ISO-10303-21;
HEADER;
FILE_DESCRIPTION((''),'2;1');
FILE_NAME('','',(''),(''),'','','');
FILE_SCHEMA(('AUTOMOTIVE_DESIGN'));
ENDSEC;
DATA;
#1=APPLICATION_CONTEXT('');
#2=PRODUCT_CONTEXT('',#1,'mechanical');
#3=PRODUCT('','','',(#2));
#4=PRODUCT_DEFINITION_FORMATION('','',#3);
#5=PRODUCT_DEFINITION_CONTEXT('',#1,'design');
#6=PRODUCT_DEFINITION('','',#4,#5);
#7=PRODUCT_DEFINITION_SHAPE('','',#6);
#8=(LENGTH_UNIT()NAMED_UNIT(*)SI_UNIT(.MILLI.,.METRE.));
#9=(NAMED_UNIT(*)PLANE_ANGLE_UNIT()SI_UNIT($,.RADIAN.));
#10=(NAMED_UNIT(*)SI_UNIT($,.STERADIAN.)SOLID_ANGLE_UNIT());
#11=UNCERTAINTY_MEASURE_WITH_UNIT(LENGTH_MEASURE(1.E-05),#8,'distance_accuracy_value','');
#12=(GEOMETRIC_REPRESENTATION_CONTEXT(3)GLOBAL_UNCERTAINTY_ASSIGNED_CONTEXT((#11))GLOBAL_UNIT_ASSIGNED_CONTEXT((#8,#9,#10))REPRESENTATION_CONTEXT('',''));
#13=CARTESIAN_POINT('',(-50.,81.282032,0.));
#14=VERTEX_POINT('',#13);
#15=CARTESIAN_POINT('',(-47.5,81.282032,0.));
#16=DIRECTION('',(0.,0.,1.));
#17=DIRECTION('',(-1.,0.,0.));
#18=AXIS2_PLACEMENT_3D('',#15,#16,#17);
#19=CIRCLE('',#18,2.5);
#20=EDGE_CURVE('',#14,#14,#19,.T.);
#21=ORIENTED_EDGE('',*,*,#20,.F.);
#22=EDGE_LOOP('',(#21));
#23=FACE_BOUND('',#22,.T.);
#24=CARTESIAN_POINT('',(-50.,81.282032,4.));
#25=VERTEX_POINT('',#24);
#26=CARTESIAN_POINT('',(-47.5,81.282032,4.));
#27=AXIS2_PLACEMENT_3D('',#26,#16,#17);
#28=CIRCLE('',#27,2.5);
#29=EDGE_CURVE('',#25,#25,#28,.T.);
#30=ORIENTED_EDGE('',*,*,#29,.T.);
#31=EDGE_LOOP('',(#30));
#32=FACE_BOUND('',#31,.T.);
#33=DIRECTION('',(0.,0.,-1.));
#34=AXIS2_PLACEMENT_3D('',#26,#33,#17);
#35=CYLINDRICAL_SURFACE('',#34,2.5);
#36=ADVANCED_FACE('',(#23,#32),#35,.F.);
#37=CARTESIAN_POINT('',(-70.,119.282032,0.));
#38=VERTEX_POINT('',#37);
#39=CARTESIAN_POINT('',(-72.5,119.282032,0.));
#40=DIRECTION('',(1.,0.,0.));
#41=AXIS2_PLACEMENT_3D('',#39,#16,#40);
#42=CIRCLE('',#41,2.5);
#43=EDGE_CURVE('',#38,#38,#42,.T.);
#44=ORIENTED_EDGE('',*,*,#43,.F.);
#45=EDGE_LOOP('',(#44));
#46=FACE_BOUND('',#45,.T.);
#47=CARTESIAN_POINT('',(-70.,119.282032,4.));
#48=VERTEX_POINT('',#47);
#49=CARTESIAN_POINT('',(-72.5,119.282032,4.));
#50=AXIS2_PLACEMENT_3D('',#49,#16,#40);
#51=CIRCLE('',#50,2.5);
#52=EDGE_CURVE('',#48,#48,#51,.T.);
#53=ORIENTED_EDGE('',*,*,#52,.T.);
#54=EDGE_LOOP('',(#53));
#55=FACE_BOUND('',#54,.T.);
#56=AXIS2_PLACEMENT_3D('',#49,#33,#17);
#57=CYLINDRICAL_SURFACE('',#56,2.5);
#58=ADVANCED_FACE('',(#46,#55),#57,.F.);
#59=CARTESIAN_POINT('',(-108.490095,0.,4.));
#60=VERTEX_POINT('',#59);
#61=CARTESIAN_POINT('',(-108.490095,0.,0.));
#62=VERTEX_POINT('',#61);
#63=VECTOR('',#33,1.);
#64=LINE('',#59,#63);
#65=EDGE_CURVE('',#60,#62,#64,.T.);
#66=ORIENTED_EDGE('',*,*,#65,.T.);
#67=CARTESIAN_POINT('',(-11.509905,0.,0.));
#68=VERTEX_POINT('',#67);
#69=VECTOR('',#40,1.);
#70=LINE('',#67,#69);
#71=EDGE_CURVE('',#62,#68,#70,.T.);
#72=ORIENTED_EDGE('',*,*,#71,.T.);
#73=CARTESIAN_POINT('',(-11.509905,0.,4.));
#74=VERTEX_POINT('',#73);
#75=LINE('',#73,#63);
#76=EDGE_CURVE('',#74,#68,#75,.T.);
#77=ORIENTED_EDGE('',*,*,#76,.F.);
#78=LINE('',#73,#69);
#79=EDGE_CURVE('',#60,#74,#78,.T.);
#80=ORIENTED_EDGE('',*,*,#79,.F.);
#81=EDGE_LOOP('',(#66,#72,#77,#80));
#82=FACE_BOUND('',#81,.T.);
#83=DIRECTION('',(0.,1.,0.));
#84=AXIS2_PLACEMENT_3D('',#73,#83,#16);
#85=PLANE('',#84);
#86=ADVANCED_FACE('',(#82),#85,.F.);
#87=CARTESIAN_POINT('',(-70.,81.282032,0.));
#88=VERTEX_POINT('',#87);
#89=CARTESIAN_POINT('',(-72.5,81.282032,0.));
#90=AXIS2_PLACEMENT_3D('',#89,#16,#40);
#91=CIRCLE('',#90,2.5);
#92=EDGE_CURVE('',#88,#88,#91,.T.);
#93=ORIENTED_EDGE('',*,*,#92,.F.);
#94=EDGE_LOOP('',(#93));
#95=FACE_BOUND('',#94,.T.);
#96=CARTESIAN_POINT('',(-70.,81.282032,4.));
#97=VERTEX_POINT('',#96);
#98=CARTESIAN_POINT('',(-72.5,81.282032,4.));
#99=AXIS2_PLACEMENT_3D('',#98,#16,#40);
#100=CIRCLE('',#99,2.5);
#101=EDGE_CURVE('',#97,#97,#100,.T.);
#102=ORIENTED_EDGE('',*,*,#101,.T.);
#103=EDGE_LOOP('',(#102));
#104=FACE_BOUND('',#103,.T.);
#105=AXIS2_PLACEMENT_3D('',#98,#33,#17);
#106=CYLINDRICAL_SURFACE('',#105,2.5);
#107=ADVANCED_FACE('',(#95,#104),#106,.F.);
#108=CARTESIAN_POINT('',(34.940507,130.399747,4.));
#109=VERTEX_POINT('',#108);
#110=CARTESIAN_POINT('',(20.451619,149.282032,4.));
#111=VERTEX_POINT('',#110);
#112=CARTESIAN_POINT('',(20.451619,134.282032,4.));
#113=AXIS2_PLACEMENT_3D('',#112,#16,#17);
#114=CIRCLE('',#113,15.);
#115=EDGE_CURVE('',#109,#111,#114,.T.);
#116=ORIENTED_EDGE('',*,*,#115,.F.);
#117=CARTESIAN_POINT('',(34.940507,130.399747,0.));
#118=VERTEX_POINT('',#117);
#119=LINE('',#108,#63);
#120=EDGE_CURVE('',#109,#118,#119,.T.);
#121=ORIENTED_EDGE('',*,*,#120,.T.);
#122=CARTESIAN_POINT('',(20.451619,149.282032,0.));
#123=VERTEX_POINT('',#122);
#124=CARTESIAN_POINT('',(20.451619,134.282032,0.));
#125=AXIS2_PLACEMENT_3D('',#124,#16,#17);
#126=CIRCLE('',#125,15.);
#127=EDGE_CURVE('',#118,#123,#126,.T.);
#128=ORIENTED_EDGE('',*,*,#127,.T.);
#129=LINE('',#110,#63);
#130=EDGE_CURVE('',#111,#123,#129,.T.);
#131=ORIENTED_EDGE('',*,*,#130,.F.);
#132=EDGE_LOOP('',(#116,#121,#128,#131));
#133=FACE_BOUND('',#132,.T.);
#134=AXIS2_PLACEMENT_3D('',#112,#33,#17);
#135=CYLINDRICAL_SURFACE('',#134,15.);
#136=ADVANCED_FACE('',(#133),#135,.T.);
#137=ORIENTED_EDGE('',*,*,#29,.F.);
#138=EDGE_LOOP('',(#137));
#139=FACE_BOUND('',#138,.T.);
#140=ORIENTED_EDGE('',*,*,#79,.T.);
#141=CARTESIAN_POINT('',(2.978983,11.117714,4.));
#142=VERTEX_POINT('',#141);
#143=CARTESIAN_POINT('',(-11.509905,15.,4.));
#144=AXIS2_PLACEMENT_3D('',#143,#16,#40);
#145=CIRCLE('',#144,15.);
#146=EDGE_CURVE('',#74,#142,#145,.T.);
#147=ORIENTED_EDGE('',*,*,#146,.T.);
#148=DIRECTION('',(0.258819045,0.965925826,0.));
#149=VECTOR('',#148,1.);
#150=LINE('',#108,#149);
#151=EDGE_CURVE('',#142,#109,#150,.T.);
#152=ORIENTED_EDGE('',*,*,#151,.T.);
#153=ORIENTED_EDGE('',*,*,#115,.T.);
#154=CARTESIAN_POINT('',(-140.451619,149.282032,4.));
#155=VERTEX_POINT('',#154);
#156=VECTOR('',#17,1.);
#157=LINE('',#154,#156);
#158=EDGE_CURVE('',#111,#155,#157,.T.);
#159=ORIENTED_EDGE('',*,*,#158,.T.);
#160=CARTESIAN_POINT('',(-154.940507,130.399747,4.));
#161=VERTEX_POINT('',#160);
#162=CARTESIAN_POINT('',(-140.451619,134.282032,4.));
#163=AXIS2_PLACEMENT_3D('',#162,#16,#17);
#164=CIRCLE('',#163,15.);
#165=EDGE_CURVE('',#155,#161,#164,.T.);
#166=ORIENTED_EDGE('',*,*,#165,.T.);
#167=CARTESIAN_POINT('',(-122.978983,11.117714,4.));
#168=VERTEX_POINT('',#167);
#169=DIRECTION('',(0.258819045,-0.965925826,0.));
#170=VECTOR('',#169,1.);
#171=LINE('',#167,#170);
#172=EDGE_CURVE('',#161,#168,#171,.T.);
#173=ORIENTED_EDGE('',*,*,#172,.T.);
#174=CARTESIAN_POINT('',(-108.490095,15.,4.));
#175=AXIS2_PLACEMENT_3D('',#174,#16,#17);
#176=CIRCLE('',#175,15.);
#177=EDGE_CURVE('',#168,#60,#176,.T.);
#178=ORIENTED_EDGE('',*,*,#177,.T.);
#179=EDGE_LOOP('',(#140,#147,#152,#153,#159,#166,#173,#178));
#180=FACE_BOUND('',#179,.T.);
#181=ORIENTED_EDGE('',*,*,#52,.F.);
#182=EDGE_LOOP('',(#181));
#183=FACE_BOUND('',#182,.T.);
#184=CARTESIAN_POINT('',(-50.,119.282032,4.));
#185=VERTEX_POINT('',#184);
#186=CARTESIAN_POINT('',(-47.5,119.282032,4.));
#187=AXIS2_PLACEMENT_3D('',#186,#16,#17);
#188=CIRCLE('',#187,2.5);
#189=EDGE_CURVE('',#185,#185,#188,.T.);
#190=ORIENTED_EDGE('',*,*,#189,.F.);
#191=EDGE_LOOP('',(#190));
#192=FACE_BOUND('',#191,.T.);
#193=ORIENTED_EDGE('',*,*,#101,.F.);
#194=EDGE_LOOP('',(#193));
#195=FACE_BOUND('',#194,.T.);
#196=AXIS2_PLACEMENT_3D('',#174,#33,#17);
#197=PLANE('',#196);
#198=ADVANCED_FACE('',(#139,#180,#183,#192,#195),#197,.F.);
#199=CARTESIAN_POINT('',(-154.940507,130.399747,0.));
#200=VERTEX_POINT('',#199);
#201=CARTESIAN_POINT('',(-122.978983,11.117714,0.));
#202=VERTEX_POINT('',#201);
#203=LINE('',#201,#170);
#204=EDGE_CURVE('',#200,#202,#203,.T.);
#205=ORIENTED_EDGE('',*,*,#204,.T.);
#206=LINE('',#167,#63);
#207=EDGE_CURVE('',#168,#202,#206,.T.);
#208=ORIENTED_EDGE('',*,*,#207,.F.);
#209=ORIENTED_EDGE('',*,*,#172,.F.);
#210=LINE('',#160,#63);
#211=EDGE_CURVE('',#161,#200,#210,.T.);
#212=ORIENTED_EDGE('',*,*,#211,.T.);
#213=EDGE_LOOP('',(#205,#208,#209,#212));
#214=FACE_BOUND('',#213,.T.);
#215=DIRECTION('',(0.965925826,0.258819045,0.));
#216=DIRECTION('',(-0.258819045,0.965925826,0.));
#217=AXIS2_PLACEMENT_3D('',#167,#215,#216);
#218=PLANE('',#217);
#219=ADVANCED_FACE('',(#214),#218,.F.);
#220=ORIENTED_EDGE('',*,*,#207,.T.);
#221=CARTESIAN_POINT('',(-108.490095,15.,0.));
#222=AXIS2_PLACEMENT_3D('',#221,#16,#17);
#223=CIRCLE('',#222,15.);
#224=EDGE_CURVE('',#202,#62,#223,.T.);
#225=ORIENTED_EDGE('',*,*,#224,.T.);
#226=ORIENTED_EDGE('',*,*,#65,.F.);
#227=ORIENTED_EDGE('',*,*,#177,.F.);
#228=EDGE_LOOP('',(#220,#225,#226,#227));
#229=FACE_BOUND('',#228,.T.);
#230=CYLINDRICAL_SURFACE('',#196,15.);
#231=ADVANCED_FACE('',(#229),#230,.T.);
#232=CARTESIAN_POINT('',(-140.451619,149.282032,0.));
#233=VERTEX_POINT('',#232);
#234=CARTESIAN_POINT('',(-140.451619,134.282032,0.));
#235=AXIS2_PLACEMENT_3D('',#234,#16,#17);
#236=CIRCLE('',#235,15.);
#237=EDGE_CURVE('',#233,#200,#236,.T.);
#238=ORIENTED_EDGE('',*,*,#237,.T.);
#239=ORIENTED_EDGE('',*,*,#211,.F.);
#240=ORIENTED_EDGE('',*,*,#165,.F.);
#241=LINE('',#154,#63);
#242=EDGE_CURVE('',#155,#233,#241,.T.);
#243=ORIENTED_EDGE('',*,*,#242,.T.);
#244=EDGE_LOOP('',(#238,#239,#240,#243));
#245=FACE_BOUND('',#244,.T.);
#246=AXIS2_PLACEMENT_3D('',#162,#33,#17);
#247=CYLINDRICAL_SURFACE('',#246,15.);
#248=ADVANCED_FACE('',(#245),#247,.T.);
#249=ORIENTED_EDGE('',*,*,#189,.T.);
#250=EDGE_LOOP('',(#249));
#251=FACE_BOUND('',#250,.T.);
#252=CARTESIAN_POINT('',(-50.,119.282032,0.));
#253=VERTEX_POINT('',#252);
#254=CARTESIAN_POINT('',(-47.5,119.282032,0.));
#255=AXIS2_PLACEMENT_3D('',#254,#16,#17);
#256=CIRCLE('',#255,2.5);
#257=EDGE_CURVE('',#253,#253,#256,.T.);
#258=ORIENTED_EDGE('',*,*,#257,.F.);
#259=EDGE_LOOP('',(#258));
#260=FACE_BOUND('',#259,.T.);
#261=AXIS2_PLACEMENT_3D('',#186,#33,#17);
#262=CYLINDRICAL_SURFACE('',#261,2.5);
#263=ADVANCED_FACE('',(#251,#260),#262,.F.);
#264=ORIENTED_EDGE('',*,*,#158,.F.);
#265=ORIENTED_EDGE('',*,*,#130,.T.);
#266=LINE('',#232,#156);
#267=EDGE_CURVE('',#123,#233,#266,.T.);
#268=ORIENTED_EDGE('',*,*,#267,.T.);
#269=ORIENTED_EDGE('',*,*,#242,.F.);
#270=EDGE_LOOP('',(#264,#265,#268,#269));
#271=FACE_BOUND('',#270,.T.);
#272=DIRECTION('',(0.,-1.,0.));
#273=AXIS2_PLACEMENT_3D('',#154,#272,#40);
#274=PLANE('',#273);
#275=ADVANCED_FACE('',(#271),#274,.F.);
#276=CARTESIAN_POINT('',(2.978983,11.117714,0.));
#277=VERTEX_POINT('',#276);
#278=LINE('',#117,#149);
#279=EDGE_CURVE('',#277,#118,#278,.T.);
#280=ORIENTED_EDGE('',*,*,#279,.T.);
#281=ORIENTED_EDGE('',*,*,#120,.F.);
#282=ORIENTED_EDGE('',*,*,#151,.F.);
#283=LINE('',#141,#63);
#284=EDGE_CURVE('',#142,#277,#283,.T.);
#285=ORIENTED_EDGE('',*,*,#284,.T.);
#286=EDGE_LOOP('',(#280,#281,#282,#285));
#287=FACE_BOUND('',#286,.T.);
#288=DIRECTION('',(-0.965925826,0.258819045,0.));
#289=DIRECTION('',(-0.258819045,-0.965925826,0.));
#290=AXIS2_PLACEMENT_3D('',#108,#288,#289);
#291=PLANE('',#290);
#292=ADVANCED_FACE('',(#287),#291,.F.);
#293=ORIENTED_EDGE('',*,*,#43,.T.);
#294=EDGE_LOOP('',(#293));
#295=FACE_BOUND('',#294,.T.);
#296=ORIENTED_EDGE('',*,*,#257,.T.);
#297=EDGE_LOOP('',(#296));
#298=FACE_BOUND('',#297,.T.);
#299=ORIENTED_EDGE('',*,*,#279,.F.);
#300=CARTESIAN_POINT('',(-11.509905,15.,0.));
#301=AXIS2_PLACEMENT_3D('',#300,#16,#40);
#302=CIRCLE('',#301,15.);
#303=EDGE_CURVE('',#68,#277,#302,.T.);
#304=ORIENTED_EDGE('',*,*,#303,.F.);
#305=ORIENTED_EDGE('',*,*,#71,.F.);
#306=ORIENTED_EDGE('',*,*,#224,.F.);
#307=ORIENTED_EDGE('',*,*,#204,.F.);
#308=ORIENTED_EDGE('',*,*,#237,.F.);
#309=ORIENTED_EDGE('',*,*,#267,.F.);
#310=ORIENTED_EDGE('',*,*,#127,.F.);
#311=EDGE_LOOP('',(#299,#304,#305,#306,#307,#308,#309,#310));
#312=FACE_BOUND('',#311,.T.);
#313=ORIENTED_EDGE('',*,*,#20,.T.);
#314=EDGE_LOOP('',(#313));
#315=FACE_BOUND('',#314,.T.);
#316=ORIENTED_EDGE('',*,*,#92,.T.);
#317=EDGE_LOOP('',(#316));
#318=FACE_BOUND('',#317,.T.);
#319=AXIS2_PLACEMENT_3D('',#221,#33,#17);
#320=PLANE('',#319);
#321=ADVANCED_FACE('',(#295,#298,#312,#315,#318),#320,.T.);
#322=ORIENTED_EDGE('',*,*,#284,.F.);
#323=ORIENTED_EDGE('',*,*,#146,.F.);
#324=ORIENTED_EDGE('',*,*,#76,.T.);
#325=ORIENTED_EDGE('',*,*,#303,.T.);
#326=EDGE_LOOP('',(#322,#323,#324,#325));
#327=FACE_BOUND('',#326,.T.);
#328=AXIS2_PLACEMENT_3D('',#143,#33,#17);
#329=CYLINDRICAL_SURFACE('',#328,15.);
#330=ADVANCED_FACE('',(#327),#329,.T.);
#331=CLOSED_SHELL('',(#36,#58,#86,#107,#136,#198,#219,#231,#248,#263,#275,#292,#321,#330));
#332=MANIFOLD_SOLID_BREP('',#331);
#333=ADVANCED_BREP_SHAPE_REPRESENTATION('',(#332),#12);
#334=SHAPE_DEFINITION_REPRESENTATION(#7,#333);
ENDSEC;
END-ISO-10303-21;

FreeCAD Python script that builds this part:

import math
import FreeCAD as App
import Part
import Sketcher

V = App.Vector
Q = App.Units.Quantity

doc = App.newDocument("Part")
body = doc.addObject("PartDesign::Body", "Body")

# Sketch on XY plane
sketch1 = body.newObject("Sketcher::SketchObject", "Sketch")
sketch1.AttachmentSupport = (doc.getObject("XY_Plane"), [""])
sketch1.MapMode = "FlatFace"
sketch1.addGeometry([
    Part.LineSegment(V(-108.490095, 0, 0), V(-11.509905, 0, 0)),  # 0
    Part.ArcOfCircle(Part.Circle(V(-11.509905, 15, 0), V(0, 0, 1), 15), math.radians(-90), math.radians(-15)),  # 1
    Part.LineSegment(V(2.978983, 11.117714, 0), V(34.940507, 130.399747, 0)),  # 2
    Part.ArcOfCircle(Part.Circle(V(20.451619, 134.282032, 0), V(0, 0, 1), 15), math.radians(-15), math.radians(90)),  # 3
    Part.LineSegment(V(20.451619, 149.282032, 0), V(-140.451619, 149.282032, 0)),  # 4
    Part.ArcOfCircle(Part.Circle(V(-140.451619, 134.282032, 0), V(0, 0, 1), 15), math.radians(90), math.radians(195)),  # 5
    Part.LineSegment(V(-154.940507, 130.399747, 0), V(-122.978983, 11.117714, 0)),  # 6
    Part.ArcOfCircle(Part.Circle(V(-108.490095, 15, 0), V(0, 0, 1), 15), math.radians(-165), math.radians(-90)),  # 7
    Part.Circle(V(-47.5, 81.282032, 0), V(0, 0, 1), 2.5),  # 8
    Part.Circle(V(-72.5, 81.282032, 0), V(0, 0, 1), 2.5),  # 9
    Part.Circle(V(-47.5, 119.282032, 0), V(0, 0, 1), 2.5),  # 10
    Part.Circle(V(-72.5, 119.282032, 0), V(0, 0, 1), 2.5),  # 11
], False)
sketch1.addConstraint([
    Sketcher.Constraint("Tangent", 0, 2, 1, 1),
    Sketcher.Constraint("Tangent", 1, 2, 2, 1),
    Sketcher.Constraint("Tangent", 2, 2, 3, 1),
    Sketcher.Constraint("Tangent", 3, 2, 4, 1),
    Sketcher.Constraint("Tangent", 4, 2, 5, 1),
    Sketcher.Constraint("Tangent", 5, 2, 6, 1),
    Sketcher.Constraint("Tangent", 6, 2, 7, 1),
    Sketcher.Constraint("Tangent", 7, 2, 0, 1),
    Sketcher.Constraint("Horizontal", 0),
    Sketcher.Constraint("Horizontal", 4),
    Sketcher.Constraint("Equal", 1, 3),
    Sketcher.Constraint("Equal", 3, 5),
    Sketcher.Constraint("Equal", 5, 7),
    Sketcher.Constraint("Equal", 8, 9),
    Sketcher.Constraint("Equal", 9, 10),
    Sketcher.Constraint("Equal", 10, 11),
    Sketcher.Constraint("PointOnObject", 0, 2, -1),
    Sketcher.Constraint("Horizontal", 8, 3, 9, 3),
    Sketcher.Constraint("Horizontal", 10, 3, 11, 3),
    Sketcher.Constraint("Horizontal", 2, 2, 5, 2),
    Sketcher.Constraint("Vertical", 8, 3, 10, 3),
    Sketcher.Constraint("Vertical", 9, 3, 11, 3),
    Sketcher.Constraint("Diameter", 8, Q("5 mm")),
    Sketcher.Constraint("Radius", 1, Q("15 mm")),
    Sketcher.Constraint("Angle", 2, Q("75 deg")),
    Sketcher.Constraint("DistanceY", 8, 3, 3, 3, Q("53 mm")),
    Sketcher.Constraint("DistanceX", 9, 3, 8, 3, Q("25 mm")),
    Sketcher.Constraint("DistanceY", 8, 3, 10, 3, Q("38 mm")),
    Sketcher.Constraint("DistanceX", 8, 3, -1, 1, Q("47.5 mm")),
    Sketcher.Constraint("DistanceX", 0, 1, 0, 2, Q("96.98019 mm")),
    Sketcher.Constraint("DistanceX", 4, 2, 4, 1, Q("160.903239 mm")),
    Sketcher.Constraint("DistanceX", -1, 1, 3, 3, Q("20.451619 mm")),
])
pad1 = body.newObject("PartDesign::Pad", "Pad")
pad1.Profile = sketch1
pad1.Length = 4

doc.recompute()
